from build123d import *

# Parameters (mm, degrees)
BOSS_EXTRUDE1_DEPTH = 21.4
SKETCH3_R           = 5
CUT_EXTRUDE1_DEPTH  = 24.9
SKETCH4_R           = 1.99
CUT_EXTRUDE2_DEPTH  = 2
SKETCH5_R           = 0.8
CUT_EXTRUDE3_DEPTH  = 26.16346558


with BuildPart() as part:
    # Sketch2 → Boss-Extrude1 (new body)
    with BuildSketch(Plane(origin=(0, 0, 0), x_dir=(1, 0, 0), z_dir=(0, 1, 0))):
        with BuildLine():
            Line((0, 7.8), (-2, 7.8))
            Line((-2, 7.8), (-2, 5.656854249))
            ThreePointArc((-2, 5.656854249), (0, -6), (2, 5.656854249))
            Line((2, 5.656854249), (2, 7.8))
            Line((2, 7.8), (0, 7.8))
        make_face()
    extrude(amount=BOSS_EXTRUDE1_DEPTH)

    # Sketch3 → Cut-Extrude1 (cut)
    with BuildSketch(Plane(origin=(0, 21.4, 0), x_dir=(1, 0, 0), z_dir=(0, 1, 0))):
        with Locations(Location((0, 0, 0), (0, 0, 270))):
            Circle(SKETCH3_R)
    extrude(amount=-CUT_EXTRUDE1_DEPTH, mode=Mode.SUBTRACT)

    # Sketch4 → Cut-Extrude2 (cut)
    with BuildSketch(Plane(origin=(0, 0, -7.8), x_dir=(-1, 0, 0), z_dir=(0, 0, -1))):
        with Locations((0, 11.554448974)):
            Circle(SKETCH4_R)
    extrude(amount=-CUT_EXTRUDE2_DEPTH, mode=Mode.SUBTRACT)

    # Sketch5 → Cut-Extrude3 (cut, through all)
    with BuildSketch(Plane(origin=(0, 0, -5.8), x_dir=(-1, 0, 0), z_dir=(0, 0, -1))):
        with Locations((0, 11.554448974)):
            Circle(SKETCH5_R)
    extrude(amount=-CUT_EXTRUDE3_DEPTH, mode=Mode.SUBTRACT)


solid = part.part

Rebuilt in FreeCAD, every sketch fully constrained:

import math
import FreeCAD as App
import Part
import Sketcher
from FreeCAD import Vector

doc = App.newDocument("Part")
params = doc.addObject("Spreadsheet::Sheet", "Params")
for row, (alias, value) in enumerate([
    ("sketch1_radius", "6 mm"),
    ("sketch1_width", "4 mm"),
    ("pad1_length", "21.4 mm"),
    ("sketch2_diameter", "10 mm"),
    ("pocket1_length", "24.9 mm"),
    ("sketch3_diameter", "3.98 mm"),
    ("pocket2_length", "2 mm"),
    ("sketch4_diameter", "1.6 mm"),
], start=1):
    params.set(f"A{row}", alias)
    params.set(f"B{row}", "=" + value)
    params.setAlias(f"B{row}", alias)

body = doc.addObject("PartDesign::Body", "Body")

# Sketch on XZ plane
sketch1 = body.newObject("Sketcher::SketchObject", "Sketch")
sketch1.AttachmentSupport = (doc.getObject("XZ_Plane"), [""])
sketch1.MapMode = "FlatFace"
sketch1.addGeometry([
    Part.LineSegment(Vector(-2, -7.8, 0), Vector(-2, -5.7, 0)),
    Part.ArcOfCircle(Part.Circle(Vector(0, 0, 0), Vector(0, 0, 1), 6), math.radians(-71), math.radians(251)),
    Part.LineSegment(Vector(2, -5.7, 0), Vector(2, -7.8, 0)),
    Part.LineSegment(Vector(2, -7.8, 0), Vector(-2, -7.8, 0)),
], False)
sketch1.addConstraint([
    Sketcher.Constraint("Coincident", 0, 2, 1, 2),
    Sketcher.Constraint("Coincident", 1, 1, 2, 1),
    Sketcher.Constraint("Coincident", 2, 2, 3, 1),
    Sketcher.Constraint("Coincident", 3, 2, 0, 1),
    Sketcher.Constraint("Vertical", 0),
    Sketcher.Constraint("Vertical", 2),
    Sketcher.Constraint("Horizontal", 3),
    Sketcher.Constraint("Coincident", 1, 3, -1, 1),
    Sketcher.Constraint("Horizontal", 0, 2, 1, 1),
    Sketcher.Constraint("Radius", 1, 6.0),
    Sketcher.Constraint("DistanceX", 3, 2, 3, 1, 4.0),
    Sketcher.Constraint("DistanceY", 2, 2, -1, 1, 7.8),
])
sketch1.setExpression("Constraints[9]", "Params.sketch1_radius")
sketch1.setExpression("Constraints[10]", "Params.sketch1_width")
pad1 = body.newObject("PartDesign::Pad", "Pad")
pad1.Profile = sketch1
pad1.setExpression("Length", "Params.pad1_length")
pad1.Reversed = True

# Sketch on XZ plane
sketch2 = body.newObject("Sketcher::SketchObject", "Sketch001")
sketch2.AttachmentSupport = (doc.getObject("XZ_Plane"), [""])
sketch2.MapMode = "FlatFace"
sketch2.AttachmentOffset = App.Placement(Vector(0, 0, -21.4), App.Rotation())
sketch2.addGeometry(Part.Circle(Vector(0, 0, 0), Vector(0, 0, 1), 5), False)
sketch2.addConstraint([
    Sketcher.Constraint("Coincident", 0, 3, -1, 1),
    Sketcher.Constraint("Diameter", 0, 10.0),
])
sketch2.setExpression("Constraints[1]", "Params.sketch2_diameter")
pocket1 = body.newObject("PartDesign::Pocket", "Pocket")
pocket1.Profile = sketch2
pocket1.setExpression("Length", "Params.pocket1_length")
pocket1.Reversed = True

# Sketch on XY plane
sketch3 = body.newObject("Sketcher::SketchObject", "Sketch002")
sketch3.AttachmentSupport = (doc.getObject("XY_Plane"), [""])
sketch3.MapMode = "FlatFace"
sketch3.AttachmentOffset = App.Placement(Vector(0, 0, -7.8), App.Rotation())
sketch3.addGeometry(Part.Circle(Vector(0, 11.6, 0), Vector(0, 0, 1), 2), False)
sketch3.addConstraint([
    Sketcher.Constraint("PointOnObject", 0, 3, -2),
    Sketcher.Constraint("Diameter", 0, 3.98),
    Sketcher.Constraint("DistanceY", -1, 1, 0, 3, 11.554449),
])
sketch3.setExpression("Constraints[1]", "Params.sketch3_diameter")
pocket2 = body.newObject("PartDesign::Pocket", "Pocket001")
pocket2.Profile = sketch3
pocket2.setExpression("Length", "Params.pocket2_length")
pocket2.Reversed = True

# Sketch on XY plane
sketch4 = body.newObject("Sketcher::SketchObject", "Sketch003")
sketch4.AttachmentSupport = (doc.getObject("XY_Plane"), [""])
sketch4.MapMode = "FlatFace"
sketch4.AttachmentOffset = App.Placement(Vector(0, 0, -5.8), App.Rotation())
sketch4.addGeometry(Part.Circle(Vector(0, 11.6, 0), Vector(0, 0, 1), 0.8), False)
sketch4.addConstraint([
    Sketcher.Constraint("PointOnObject", 0, 3, -2),
    Sketcher.Constraint("Diameter", 0, 1.6),
    Sketcher.Constraint("DistanceY", -1, 1, 0, 3, 11.554449),
])
sketch4.setExpression("Constraints[1]", "Params.sketch4_diameter")
pocket3 = body.newObject("PartDesign::Pocket", "Pocket002")
pocket3.Profile = sketch4
pocket3.Type = "ThroughAll"
pocket3.Reversed = True

doc.recompute()
